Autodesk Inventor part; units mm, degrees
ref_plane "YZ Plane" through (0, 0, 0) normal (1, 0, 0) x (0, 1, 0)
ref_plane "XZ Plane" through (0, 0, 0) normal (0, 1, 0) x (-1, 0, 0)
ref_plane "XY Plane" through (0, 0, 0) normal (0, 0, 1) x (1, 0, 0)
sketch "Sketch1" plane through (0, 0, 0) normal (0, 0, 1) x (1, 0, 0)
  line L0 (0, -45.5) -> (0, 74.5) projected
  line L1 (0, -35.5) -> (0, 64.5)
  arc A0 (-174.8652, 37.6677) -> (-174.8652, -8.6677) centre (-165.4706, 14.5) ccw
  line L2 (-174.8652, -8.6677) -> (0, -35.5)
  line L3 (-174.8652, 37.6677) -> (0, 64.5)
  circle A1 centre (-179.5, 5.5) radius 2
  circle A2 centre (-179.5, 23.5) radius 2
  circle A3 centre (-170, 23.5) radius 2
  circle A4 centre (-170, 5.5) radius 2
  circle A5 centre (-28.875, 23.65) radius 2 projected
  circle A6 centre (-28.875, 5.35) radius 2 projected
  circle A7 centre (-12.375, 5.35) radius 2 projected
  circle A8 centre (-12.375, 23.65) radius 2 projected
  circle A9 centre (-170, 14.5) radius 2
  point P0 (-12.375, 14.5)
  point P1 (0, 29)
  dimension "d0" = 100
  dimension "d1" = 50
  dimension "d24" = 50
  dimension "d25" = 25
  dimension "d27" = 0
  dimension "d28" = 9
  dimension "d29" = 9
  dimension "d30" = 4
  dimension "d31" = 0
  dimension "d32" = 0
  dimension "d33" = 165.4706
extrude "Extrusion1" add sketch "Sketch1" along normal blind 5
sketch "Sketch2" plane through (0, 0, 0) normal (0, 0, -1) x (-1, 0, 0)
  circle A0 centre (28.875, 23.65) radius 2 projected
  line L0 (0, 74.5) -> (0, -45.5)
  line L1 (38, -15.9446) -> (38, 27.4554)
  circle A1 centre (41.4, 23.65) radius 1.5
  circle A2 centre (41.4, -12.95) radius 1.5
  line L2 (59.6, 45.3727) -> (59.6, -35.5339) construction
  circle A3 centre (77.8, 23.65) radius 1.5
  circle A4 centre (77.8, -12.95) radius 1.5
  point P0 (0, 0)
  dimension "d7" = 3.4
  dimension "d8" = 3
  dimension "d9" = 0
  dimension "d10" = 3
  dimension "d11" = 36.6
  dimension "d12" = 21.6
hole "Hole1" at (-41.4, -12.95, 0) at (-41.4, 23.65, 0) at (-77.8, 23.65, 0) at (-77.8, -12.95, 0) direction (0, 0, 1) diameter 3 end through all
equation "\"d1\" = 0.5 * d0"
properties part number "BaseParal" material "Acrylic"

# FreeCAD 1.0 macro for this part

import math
import FreeCAD as App
import Part
import Sketcher

V = App.Vector

doc = App.newDocument("Part")
body = doc.addObject("PartDesign::Body", "Body")

sketch1 = body.newObject("Sketcher::SketchObject", "Sketch")
sketch1.AttachmentSupport = (doc.getObject("XY_Plane"), [""])
sketch1.MapMode = "FlatFace"
sketch1.addGeometry(Part.LineSegment(V(-174.9, -8.7, 0), V(0, -35.5, 0)), False)
sketch1.addGeometry(Part.LineSegment(V(0, -35.5, 0), V(0, 64.5, 0)), False)
sketch1.addGeometry(Part.LineSegment(V(0, 64.5, 0), V(-174.9, 37.7, 0)), False)
sketch1.addGeometry(Part.ArcOfCircle(Part.Circle(V(-165.5, 14.5, 0), V(0, 0, 1), 25), math.radians(112), math.radians(248)), False)
sketch1.addGeometry(Part.Circle(V(-179.5, 5.5, 0), V(0, 0, 1), 2), False)
sketch1.addGeometry(Part.Circle(V(-170, 5.5, 0), V(0, 0, 1), 2), False)
sketch1.addGeometry(Part.Circle(V(-28.9, 5.3, 0), V(0, 0, 1), 2), False)
sketch1.addGeometry(Part.Circle(V(-12.4, 5.3, 0), V(0, 0, 1), 2), False)
sketch1.addGeometry(Part.Circle(V(-170, 14.5, 0), V(0, 0, 1), 2), False)
sketch1.addGeometry(Part.Circle(V(-179.5, 23.5, 0), V(0, 0, 1), 2), False)
sketch1.addGeometry(Part.Circle(V(-170, 23.5, 0), V(0, 0, 1), 2), False)
sketch1.addGeometry(Part.Circle(V(-28.9, 23.6, 0), V(0, 0, 1), 2), False)
sketch1.addGeometry(Part.Circle(V(-12.4, 23.6, 0), V(0, 0, 1), 2), False)
sketch1.addConstraint(Sketcher.Constraint("Coincident", 0, 2, 1, 1))
sketch1.addConstraint(Sketcher.Constraint("Coincident", 1, 2, 2, 1))
sketch1.addConstraint(Sketcher.Constraint("Coincident", 2, 2, 3, 1))
sketch1.addConstraint(Sketcher.Constraint("Coincident", 3, 2, 0, 1))
sketch1.addConstraint(Sketcher.Constraint("Vertical", 1))
sketch1.addConstraint(Sketcher.Constraint("Equal", 4, 5))
sketch1.addConstraint(Sketcher.Constraint("Equal", 5, 6))
sketch1.addConstraint(Sketcher.Constraint("Equal", 6, 7))
sketch1.addConstraint(Sketcher.Constraint("Equal", 7, 8))
sketch1.addConstraint(Sketcher.Constraint("Equal", 8, 9))
sketch1.addConstraint(Sketcher.Constraint("Equal", 9, 10))
sketch1.addConstraint(Sketcher.Constraint("Equal", 10, 11))
sketch1.addConstraint(Sketcher.Constraint("Equal", 11, 12))
sketch1.addConstraint(Sketcher.Constraint("PointOnObject", 0, 2, -2))
sketch1.addConstraint(Sketcher.Constraint("Horizontal", 4, 3, 5, 3))
sketch1.addConstraint(Sketcher.Constraint("Horizontal", 6, 3, 7, 3))
sketch1.addConstraint(Sketcher.Constraint("Horizontal", 3, 3, 8, 3))
sketch1.addConstraint(Sketcher.Constraint("Horizontal", 9, 3, 10, 3))
sketch1.addConstraint(Sketcher.Constraint("Horizontal", 11, 3, 12, 3))
sketch1.addConstraint(Sketcher.Constraint("Vertical", 5, 3, 8, 3))
sketch1.addConstraint(Sketcher.Constraint("Vertical", 4, 3, 9, 3))
sketch1.addConstraint(Sketcher.Constraint("Vertical", 8, 3, 10, 3))
sketch1.addConstraint(Sketcher.Constraint("Vertical", 6, 3, 11, 3))
sketch1.addConstraint(Sketcher.Constraint("Vertical", 7, 3, 12, 3))
sketch1.addConstraint(Sketcher.Constraint("Vertical", 2, 2, 3, 2))
sketch1.addConstraint(Sketcher.Constraint("Equal", 0, 2))
sketch1.addConstraint(Sketcher.Constraint("Diameter", 4, 4.0))
sketch1.addConstraint(Sketcher.Constraint("Radius", 3, 25.0))
sketch1.addConstraint(Sketcher.Constraint("DistanceY", 1, 1, 1, 2, 100.0))
sketch1.addConstraint(Sketcher.Constraint("DistanceY", 4, 3, 3, 3, 9.0))
sketch1.addConstraint(Sketcher.Constraint("DistanceY", 8, 3, 9, 3, 9.0))
sketch1.addConstraint(Sketcher.Constraint("DistanceX", 5, 3, -1, 1, 170.0))
sketch1.addConstraint(Sketcher.Constraint("DistanceX", 3, 3, -1, 1, 165.4706))
sketch1.addConstraint(Sketcher.Constraint("DistanceY", -1, 1, 3, 3, 14.5))
sketch1.addConstraint(Sketcher.Constraint("DistanceX", 4, 3, -1, 1, 179.5))
sketch1.addConstraint(Sketcher.Constraint("DistanceX", 6, 3, 7, 3, 16.5))
sketch1.addConstraint(Sketcher.Constraint("DistanceY", 6, 3, 11, 3, 18.3))
sketch1.addConstraint(Sketcher.Constraint("DistanceY", -1, 1, 6, 3, 5.35))
sketch1.addConstraint(Sketcher.Constraint("DistanceX", 6, 3, -1, 1, 28.875))
sketch1.addConstraint(Sketcher.Constraint("Distance", 0, 176.9119))
pad1 = body.newObject("PartDesign::Pad", "Pad")
pad1.Profile = sketch1
pad1.Length = 5

sketch2 = body.newObject("Sketcher::SketchObject", "Sketch001")
sketch2.AttachmentSupport = (doc.getObject("XY_Plane"), [""])
sketch2.MapMode = "FlatFace"
sketch2.addGeometry(Part.Circle(V(-41.4, -12.9, 0), V(0, 0, 1), 1.5), False)
sketch2.addGeometry(Part.Circle(V(-41.4, 23.6, 0), V(0, 0, 1), 1.5), False)
sketch2.addGeometry(Part.Circle(V(-77.8, 23.6, 0), V(0, 0, 1), 1.5), False)
sketch2.addGeometry(Part.Circle(V(-77.8, -12.9, 0), V(0, 0, 1), 1.5), False)
sketch2.addConstraint(Sketcher.Constraint("Equal", 0, 1))
sketch2.addConstraint(Sketcher.Constraint("Equal", 1, 2))
sketch2.addConstraint(Sketcher.Constraint("Equal", 2, 3))
sketch2.addConstraint(Sketcher.Constraint("Horizontal", 1, 3, 2, 3))
sketch2.addConstraint(Sketcher.Constraint("Horizontal", 0, 3, 3, 3))
sketch2.addConstraint(Sketcher.Constraint("Vertical", 0, 3, 1, 3))
sketch2.addConstraint(Sketcher.Constraint("Vertical", 2, 3, 3, 3))
sketch2.addConstraint(Sketcher.Constraint("Diameter", 0, 3.0))
sketch2.addConstraint(Sketcher.Constraint("DistanceX", 0, 3, -1, 1, 41.4))
sketch2.addConstraint(Sketcher.Constraint("DistanceX", 2, 3, -1, 1, 77.8))
sketch2.addConstraint(Sketcher.Constraint("DistanceY", 0, 3, 1, 3, 36.6))
sketch2.addConstraint(Sketcher.Constraint("DistanceY", 0, 3, -1, 1, 12.95))
doc.recompute()
hole = body.newObject("PartDesign::Hole", "Hole")
hole.Profile = sketch2
hole.ThreadType = "None"
hole.Diameter = 3
hole.DepthType = "ThroughAll"
hole.Reversed = True

doc.recompute()
